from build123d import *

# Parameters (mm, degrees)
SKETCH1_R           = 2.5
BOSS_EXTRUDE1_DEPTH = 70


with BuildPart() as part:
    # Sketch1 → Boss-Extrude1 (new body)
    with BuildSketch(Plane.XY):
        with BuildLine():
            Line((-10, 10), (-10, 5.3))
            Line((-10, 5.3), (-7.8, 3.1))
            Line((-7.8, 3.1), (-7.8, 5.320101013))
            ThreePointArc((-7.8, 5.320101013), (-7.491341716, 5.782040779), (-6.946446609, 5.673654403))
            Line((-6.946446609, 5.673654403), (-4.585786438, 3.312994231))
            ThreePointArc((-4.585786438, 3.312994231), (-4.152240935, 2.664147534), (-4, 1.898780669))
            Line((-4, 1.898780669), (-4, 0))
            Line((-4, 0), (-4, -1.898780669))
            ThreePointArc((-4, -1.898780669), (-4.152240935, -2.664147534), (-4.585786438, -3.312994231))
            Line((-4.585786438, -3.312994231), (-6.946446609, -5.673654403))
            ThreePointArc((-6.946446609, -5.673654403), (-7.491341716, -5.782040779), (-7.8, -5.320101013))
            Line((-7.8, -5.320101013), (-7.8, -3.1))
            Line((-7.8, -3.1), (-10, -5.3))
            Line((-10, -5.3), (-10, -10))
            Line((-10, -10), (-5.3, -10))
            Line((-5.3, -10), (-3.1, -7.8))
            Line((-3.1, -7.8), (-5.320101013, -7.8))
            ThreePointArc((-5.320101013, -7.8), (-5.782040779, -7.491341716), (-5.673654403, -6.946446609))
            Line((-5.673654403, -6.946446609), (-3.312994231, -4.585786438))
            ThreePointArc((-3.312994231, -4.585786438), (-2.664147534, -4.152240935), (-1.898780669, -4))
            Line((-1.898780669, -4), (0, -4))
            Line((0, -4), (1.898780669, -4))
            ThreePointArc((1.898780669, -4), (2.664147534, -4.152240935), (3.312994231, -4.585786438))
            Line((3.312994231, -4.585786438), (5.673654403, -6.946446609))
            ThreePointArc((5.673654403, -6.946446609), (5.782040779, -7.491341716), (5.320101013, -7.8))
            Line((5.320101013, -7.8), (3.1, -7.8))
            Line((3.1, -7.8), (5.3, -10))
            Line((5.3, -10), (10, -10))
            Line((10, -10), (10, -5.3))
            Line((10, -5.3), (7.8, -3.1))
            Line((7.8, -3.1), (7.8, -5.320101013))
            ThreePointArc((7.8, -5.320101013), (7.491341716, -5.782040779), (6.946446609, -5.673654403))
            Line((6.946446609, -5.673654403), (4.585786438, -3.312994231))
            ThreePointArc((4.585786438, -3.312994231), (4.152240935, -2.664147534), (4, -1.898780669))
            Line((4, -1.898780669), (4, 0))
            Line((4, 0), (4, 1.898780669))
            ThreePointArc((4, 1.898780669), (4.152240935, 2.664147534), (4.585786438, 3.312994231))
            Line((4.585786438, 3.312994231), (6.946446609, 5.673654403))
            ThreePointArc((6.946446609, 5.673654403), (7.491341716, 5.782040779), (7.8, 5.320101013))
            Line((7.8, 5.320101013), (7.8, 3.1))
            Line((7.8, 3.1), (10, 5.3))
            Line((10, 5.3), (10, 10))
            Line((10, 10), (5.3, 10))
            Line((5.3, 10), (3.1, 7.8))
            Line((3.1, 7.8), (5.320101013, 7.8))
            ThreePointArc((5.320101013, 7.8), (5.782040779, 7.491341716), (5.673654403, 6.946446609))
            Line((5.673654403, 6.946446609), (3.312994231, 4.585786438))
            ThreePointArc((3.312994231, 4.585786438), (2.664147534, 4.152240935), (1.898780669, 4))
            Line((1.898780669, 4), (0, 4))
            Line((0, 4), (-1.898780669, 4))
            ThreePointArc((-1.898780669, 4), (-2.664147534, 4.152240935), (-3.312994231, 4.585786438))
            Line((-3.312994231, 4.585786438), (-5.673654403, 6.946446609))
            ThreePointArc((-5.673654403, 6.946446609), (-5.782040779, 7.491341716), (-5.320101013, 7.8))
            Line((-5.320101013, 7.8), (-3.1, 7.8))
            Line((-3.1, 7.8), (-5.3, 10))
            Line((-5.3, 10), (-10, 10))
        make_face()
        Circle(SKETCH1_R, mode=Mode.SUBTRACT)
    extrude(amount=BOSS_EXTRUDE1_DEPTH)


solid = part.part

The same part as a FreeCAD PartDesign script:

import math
import FreeCAD as App
import Part
import Sketcher
from FreeCAD import Vector

doc = App.newDocument("Part")
body = doc.addObject("PartDesign::Body", "Body")

# Sketch on XY plane
sketch1 = doc.addObject("Sketcher::SketchObject", "Sketch")
body.addObject(sketch1)
sketch1.AttachmentSupport = (doc.XY_Plane, [""])
sketch1.MapMode = "FlatFace"
sketch1.addGeometry(Part.LineSegment(Vector(-10, 10, 0), Vector(-10, 5.3, 0)), False)
sketch1.addGeometry(Part.LineSegment(Vector(-10, 5.3, 0), Vector(-7.8, 3.1, 0)), False)
sketch1.addGeometry(Part.LineSegment(Vector(-7.8, 3.1, 0), Vector(-7.8, 5.3, 0)), False)
sketch1.addGeometry(Part.ArcOfCircle(Part.Circle(Vector(-7.3, 5.3, 0), Vector(0, 0, 1), 0.5), math.radians(45), math.radians(180)), False)
sketch1.addGeometry(Part.LineSegment(Vector(-6.9, 5.7, 0), Vector(-4.6, 3.3, 0)), False)
sketch1.addGeometry(Part.ArcOfCircle(Part.Circle(Vector(-6, 1.9, 0), Vector(0, 0, 1), 2), math.radians(0), math.radians(45)), False)
sketch1.addGeometry(Part.LineSegment(Vector(-4, 1.9, 0), Vector(-4, -1.9, 0)), False)
sketch1.addGeometry(Part.ArcOfCircle(Part.Circle(Vector(-6, -1.9, 0), Vector(0, 0, 1), 2), math.radians(-45), math.radians(0)), False)
sketch1.addGeometry(Part.LineSegment(Vector(-4.6, -3.3, 0), Vector(-6.9, -5.7, 0)), False)
sketch1.addGeometry(Part.ArcOfCircle(Part.Circle(Vector(-7.3, -5.3, 0), Vector(0, 0, 1), 0.5), math.radians(180), math.radians(315)), False)
sketch1.addGeometry(Part.LineSegment(Vector(-7.8, -5.3, 0), Vector(-7.8, -3.1, 0)), False)
sketch1.addGeometry(Part.LineSegment(Vector(-7.8, -3.1, 0), Vector(-10, -5.3, 0)), False)
sketch1.addGeometry(Part.LineSegment(Vector(-10, -5.3, 0), Vector(-10, -10, 0)), False)
sketch1.addGeometry(Part.LineSegment(Vector(-10, -10, 0), Vector(-5.3, -10, 0)), False)
sketch1.addGeometry(Part.LineSegment(Vector(-5.3, -10, 0), Vector(-3.1, -7.8, 0)), False)
sketch1.addGeometry(Part.LineSegment(Vector(-3.1, -7.8, 0), Vector(-5.3, -7.8, 0)), False)
sketch1.addGeometry(Part.ArcOfCircle(Part.Circle(Vector(-5.3, -7.3, 0), Vector(0, 0, 1), 0.5), math.radians(135), math.radians(270)), False)
sketch1.addGeometry(Part.LineSegment(Vector(-5.7, -6.9, 0), Vector(-3.3, -4.6, 0)), False)
sketch1.addGeometry(Part.ArcOfCircle(Part.Circle(Vector(-1.9, -6, 0), Vector(0, 0, 1), 2), math.radians(90), math.radians(135)), False)
sketch1.addGeometry(Part.LineSegment(Vector(-1.9, -4, 0), Vector(1.9, -4, 0)), False)
sketch1.addGeometry(Part.ArcOfCircle(Part.Circle(Vector(1.9, -6, 0), Vector(0, 0, 1), 2), math.radians(45), math.radians(90)), False)
sketch1.addGeometry(Part.LineSegment(Vector(3.3, -4.6, 0), Vector(5.7, -6.9, 0)), False)
sketch1.addGeometry(Part.ArcOfCircle(Part.Circle(Vector(5.3, -7.3, 0), Vector(0, 0, 1), 0.5), math.radians(-90), math.radians(45)), False)
sketch1.addGeometry(Part.LineSegment(Vector(5.3, -7.8, 0), Vector(3.1, -7.8, 0)), False)
sketch1.addGeometry(Part.LineSegment(Vector(3.1, -7.8, 0), Vector(5.3, -10, 0)), False)
sketch1.addGeometry(Part.LineSegment(Vector(5.3, -10, 0), Vector(10, -10, 0)), False)
sketch1.addGeometry(Part.LineSegment(Vector(10, -10, 0), Vector(10, -5.3, 0)), False)
sketch1.addGeometry(Part.LineSegment(Vector(10, -5.3, 0), Vector(7.8, -3.1, 0)), False)
sketch1.addGeometry(Part.LineSegment(Vector(7.8, -3.1, 0), Vector(7.8, -5.3, 0)), False)
sketch1.addGeometry(Part.ArcOfCircle(Part.Circle(Vector(7.3, -5.3, 0), Vector(0, 0, 1), 0.5), math.radians(-135), math.radians(0)), False)
sketch1.addGeometry(Part.LineSegment(Vector(6.9, -5.7, 0), Vector(4.6, -3.3, 0)), False)
sketch1.addGeometry(Part.ArcOfCircle(Part.Circle(Vector(6, -1.9, 0), Vector(0, 0, 1), 2), math.radians(180), math.radians(225)), False)
sketch1.addGeometry(Part.LineSegment(Vector(4, -1.9, 0), Vector(4, 1.9, 0)), False)
sketch1.addGeometry(Part.ArcOfCircle(Part.Circle(Vector(6, 1.9, 0), Vector(0, 0, 1), 2), math.radians(135), math.radians(180)), False)
sketch1.addGeometry(Part.LineSegment(Vector(4.6, 3.3, 0), Vector(6.9, 5.7, 0)), False)
sketch1.addGeometry(Part.ArcOfCircle(Part.Circle(Vector(7.3, 5.3, 0), Vector(0, 0, 1), 0.5), math.radians(0), math.radians(135)), False)
sketch1.addGeometry(Part.LineSegment(Vector(7.8, 5.3, 0), Vector(7.8, 3.1, 0)), False)
sketch1.addGeometry(Part.LineSegment(Vector(7.8, 3.1, 0), Vector(10, 5.3, 0)), False)
sketch1.addGeometry(Part.LineSegment(Vector(10, 5.3, 0), Vector(10, 10, 0)), False)
sketch1.addGeometry(Part.LineSegment(Vector(10, 10, 0), Vector(5.3, 10, 0)), False)
sketch1.addGeometry(Part.LineSegment(Vector(5.3, 10, 0), Vector(3.1, 7.8, 0)), False)
sketch1.addGeometry(Part.LineSegment(Vector(3.1, 7.8, 0), Vector(5.3, 7.8, 0)), False)
sketch1.addGeometry(Part.ArcOfCircle(Part.Circle(Vector(5.3, 7.3, 0), Vector(0, 0, 1), 0.5), math.radians(-45), math.radians(90)), False)
sketch1.addGeometry(Part.LineSegment(Vector(5.7, 6.9, 0), Vector(3.3, 4.6, 0)), False)
sketch1.addGeometry(Part.ArcOfCircle(Part.Circle(Vector(1.9, 6, 0), Vector(0, 0, 1), 2), math.radians(-90), math.radians(-45)), False)
sketch1.addGeometry(Part.LineSegment(Vector(1.9, 4, 0), Vector(-1.9, 4, 0)), False)
sketch1.addGeometry(Part.ArcOfCircle(Part.Circle(Vector(-1.9, 6, 0), Vector(0, 0, 1), 2), math.radians(-135), math.radians(-90)), False)
sketch1.addGeometry(Part.LineSegment(Vector(-3.3, 4.6, 0), Vector(-5.7, 6.9, 0)), False)
sketch1.addGeometry(Part.ArcOfCircle(Part.Circle(Vector(-5.3, 7.3, 0), Vector(0, 0, 1), 0.5), math.radians(90), math.radians(225)), False)
sketch1.addGeometry(Part.LineSegment(Vector(-5.3, 7.8, 0), Vector(-3.1, 7.8, 0)), False)
sketch1.addGeometry(Part.LineSegment(Vector(-3.1, 7.8, 0), Vector(-5.3, 10, 0)), False)
sketch1.addGeometry(Part.LineSegment(Vector(-5.3, 10, 0), Vector(-10, 10, 0)), False)
sketch1.addGeometry(Part.Circle(Vector(0, 0, 0), Vector(0, 0, 1), 2.5), False)
sketch1.addConstraint(Sketcher.Constraint("Coincident", 0, 2, 1, 1))
sketch1.addConstraint(Sketcher.Constraint("Coincident", 1, 2, 2, 1))
sketch1.addConstraint(Sketcher.Constraint("Tangent", 2, 2, 3, 2))
sketch1.addConstraint(Sketcher.Constraint("Tangent", 3, 1, 4, 1))
sketch1.addConstraint(Sketcher.Constraint("Tangent", 4, 2, 5, 2))
sketch1.addConstraint(Sketcher.Constraint("Tangent", 5, 1, 6, 1))
sketch1.addConstraint(Sketcher.Constraint("Tangent", 6, 2, 7, 2))
sketch1.addConstraint(Sketcher.Constraint("Tangent", 7, 1, 8, 1))
sketch1.addConstraint(Sketcher.Constraint("Tangent", 8, 2, 9, 2))
sketch1.addConstraint(Sketcher.Constraint("Tangent", 9, 1, 10, 1))
sketch1.addConstraint(Sketcher.Constraint("Coincident", 10, 2, 11, 1))
sketch1.addConstraint(Sketcher.Constraint("Coincident", 11, 2, 12, 1))
sketch1.addConstraint(Sketcher.Constraint("Coincident", 12, 2, 13, 1))
sketch1.addConstraint(Sketcher.Constraint("Coincident", 13, 2, 14, 1))
sketch1.addConstraint(Sketcher.Constraint("Coincident", 14, 2, 15, 1))
sketch1.addConstraint(Sketcher.Constraint("Tangent", 15, 2, 16, 2))
sketch1.addConstraint(Sketcher.Constraint("Tangent", 16, 1, 17, 1))
sketch1.addConstraint(Sketcher.Constraint("Tangent", 17, 2, 18, 2))
sketch1.addConstraint(Sketcher.Constraint("Tangent", 18, 1, 19, 1))
sketch1.addConstraint(Sketcher.Constraint("Tangent", 19, 2, 20, 2))
sketch1.addConstraint(Sketcher.Constraint("Tangent", 20, 1, 21, 1))
sketch1.addConstraint(Sketcher.Constraint("Tangent", 21, 2, 22, 2))
sketch1.addConstraint(Sketcher.Constraint("Tangent", 22, 1, 23, 1))
sketch1.addConstraint(Sketcher.Constraint("Coincident", 23, 2, 24, 1))
sketch1.addConstraint(Sketcher.Constraint("Coincident", 24, 2, 25, 1))
sketch1.addConstraint(Sketcher.Constraint("Coincident", 25, 2, 26, 1))
sketch1.addConstraint(Sketcher.Constraint("Coincident", 26, 2, 27, 1))
sketch1.addConstraint(Sketcher.Constraint("Coincident", 27, 2, 28, 1))
sketch1.addConstraint(Sketcher.Constraint("Tangent", 28, 2, 29, 2))
sketch1.addConstraint(Sketcher.Constraint("Tangent", 29, 1, 30, 1))
sketch1.addConstraint(Sketcher.Constraint("Tangent", 30, 2, 31, 2))
sketch1.addConstraint(Sketcher.Constraint("Tangent", 31, 1, 32, 1))
sketch1.addConstraint(Sketcher.Constraint("Tangent", 32, 2, 33, 2))
sketch1.addConstraint(Sketcher.Constraint("Tangent", 33, 1, 34, 1))
sketch1.addConstraint(Sketcher.Constraint("Tangent", 34, 2, 35, 2))
sketch1.addConstraint(Sketcher.Constraint("Tangent", 35, 1, 36, 1))
sketch1.addConstraint(Sketcher.Constraint("Coincident", 36, 2, 37, 1))
sketch1.addConstraint(Sketcher.Constraint("Coincident", 37, 2, 38, 1))
sketch1.addConstraint(Sketcher.Constraint("Coincident", 38, 2, 39, 1))
sketch1.addConstraint(Sketcher.Constraint("Coincident", 39, 2, 40, 1))
sketch1.addConstraint(Sketcher.Constraint("Coincident", 40, 2, 41, 1))
sketch1.addConstraint(Sketcher.Constraint("Tangent", 41, 2, 42, 2))
sketch1.addConstraint(Sketcher.Constraint("Tangent", 42, 1, 43, 1))
sketch1.addConstraint(Sketcher.Constraint("Tangent", 43, 2, 44, 2))
sketch1.addConstraint(Sketcher.Constraint("Tangent", 44, 1, 45, 1))
sketch1.addConstraint(Sketcher.Constraint("Tangent", 45, 2, 46, 2))
sketch1.addConstraint(Sketcher.Constraint("Tangent", 46, 1, 47, 1))
sketch1.addConstraint(Sketcher.Constraint("Tangent", 47, 2, 48, 2))
sketch1.addConstraint(Sketcher.Constraint("Tangent", 48, 1, 49, 1))
sketch1.addConstraint(Sketcher.Constraint("Coincident", 49, 2, 50, 1))
sketch1.addConstraint(Sketcher.Constraint("Coincident", 50, 2, 51, 1))
sketch1.addConstraint(Sketcher.Constraint("Coincident", 51, 2, 0, 1))
sketch1.addConstraint(Sketcher.Constraint("Vertical", 0))
sketch1.addConstraint(Sketcher.Constraint("Vertical", 2))
sketch1.addConstraint(Sketcher.Constraint("Vertical", 6))
sketch1.addConstraint(Sketcher.Constraint("Vertical", 10))
sketch1.addConstraint(Sketcher.Constraint("Vertical", 12))
sketch1.addConstraint(Sketcher.Constraint("Horizontal", 13))
sketch1.addConstraint(Sketcher.Constraint("Horizontal", 15))
sketch1.addConstraint(Sketcher.Constraint("Horizontal", 19))
sketch1.addConstraint(Sketcher.Constraint("Horizontal", 23))
sketch1.addConstraint(Sketcher.Constraint("Horizontal", 25))
sketch1.addConstraint(Sketcher.Constraint("Vertical", 26))
sketch1.addConstraint(Sketcher.Constraint("Vertical", 28))
sketch1.addConstraint(Sketcher.Constraint("Vertical", 32))
sketch1.addConstraint(Sketcher.Constraint("Vertical", 36))
sketch1.addConstraint(Sketcher.Constraint("Vertical", 38))
sketch1.addConstraint(Sketcher.Constraint("Horizontal", 39))
sketch1.addConstraint(Sketcher.Constraint("Horizontal", 41))
sketch1.addConstraint(Sketcher.Constraint("Horizontal", 45))
sketch1.addConstraint(Sketcher.Constraint("Horizontal", 49))
sketch1.addConstraint(Sketcher.Constraint("Horizontal", 51))
sketch1.addConstraint(Sketcher.Constraint("Coincident", 52, 3, -1, 1))
sketch1.addConstraint(Sketcher.Constraint("Equal", 5, 7))
sketch1.addConstraint(Sketcher.Constraint("Equal", 3, 9))
sketch1.addConstraint(Sketcher.Constraint("Equal", 9, 16))
sketch1.addConstraint(Sketcher.Constraint("Equal", 7, 18))
sketch1.addConstraint(Sketcher.Constraint("Equal", 18, 20))
sketch1.addConstraint(Sketcher.Constraint("Equal", 16, 22))
sketch1.addConstraint(Sketcher.Constraint("Equal", 22, 29))
sketch1.addConstraint(Sketcher.Constraint("Equal", 20, 31))
sketch1.addConstraint(Sketcher.Constraint("Equal", 31, 33))
sketch1.addConstraint(Sketcher.Constraint("Equal", 29, 35))
sketch1.addConstraint(Sketcher.Constraint("Equal", 35, 42))
sketch1.addConstraint(Sketcher.Constraint("Equal", 33, 44))
sketch1.addConstraint(Sketcher.Constraint("Equal", 44, 46))
sketch1.addConstraint(Sketcher.Constraint("Equal", 42, 48))
sketch1.addConstraint(Sketcher.Constraint("Symmetric", 3, 3, 29, 3, -1, 1))
sketch1.addConstraint(Sketcher.Constraint("Symmetric", 5, 3, 31, 3, -1, 1))
sketch1.addConstraint(Sketcher.Constraint("Symmetric", 9, 3, 35, 3, -1, 1))
sketch1.addConstraint(Sketcher.Constraint("Symmetric", 16, 3, 42, 3, -1, 1))
sketch1.addConstraint(Sketcher.Constraint("Symmetric", 18, 3, 44, 3, -1, 1))
sketch1.addConstraint(Sketcher.Constraint("Symmetric", 22, 3, 48, 3, -1, 1))
sketch1.addConstraint(Sketcher.Constraint("Symmetric", 0, 2, 26, 2, -1, 1))
sketch1.addConstraint(Sketcher.Constraint("Symmetric", 11, 2, 37, 2, -1, 1))
sketch1.addConstraint(Sketcher.Constraint("Symmetric", 13, 2, 39, 2, -1, 1))
sketch1.addConstraint(Sketcher.Constraint("Symmetric", 24, 2, 50, 2, -1, 1))
sketch1.addConstraint(Sketcher.Constraint("Symmetric", 16, 3, 22, 3, -2))
sketch1.addConstraint(Sketcher.Constraint("Symmetric", 9, 3, 29, 3, -2))
sketch1.addConstraint(Sketcher.Constraint("Symmetric", 13, 2, 24, 2, -2))
sketch1.addConstraint(Sketcher.Constraint("Symmetric", 11, 2, 26, 2, -2))
sketch1.addConstraint(Sketcher.Constraint("Parallel", 1, 4))
sketch1.addConstraint(Sketcher.Constraint("Perpendicular", 4, 8))
sketch1.addConstraint(Sketcher.Constraint("Parallel", 8, 11))
sketch1.addConstraint(Sketcher.Constraint("Parallel", 11, 14))
sketch1.addConstraint(Sketcher.Constraint("Parallel", 14, 17))
sketch1.addConstraint(Sketcher.Constraint("Perpendicular", 17, 21))
sketch1.addConstraint(Sketcher.Constraint("Parallel", 21, 24))
sketch1.addConstraint(Sketcher.Constraint("Parallel", 24, 27))
sketch1.addConstraint(Sketcher.Constraint("Perpendicular", 30, 34))
sketch1.addConstraint(Sketcher.Constraint("Parallel", 34, 37))
sketch1.addConstraint(Sketcher.Constraint("Parallel", 37, 40))
sketch1.addConstraint(Sketcher.Constraint("Perpendicular", 43, 47))
sketch1.addConstraint(Sketcher.Constraint("Parallel", 47, 50))
sketch1.addConstraint(Sketcher.Constraint("Horizontal", 7, 3, 31, 3))
sketch1.addConstraint(Sketcher.Constraint("Equal", 51, 0))
sketch1.addConstraint(Sketcher.Constraint("Equal", 49, 2))
sketch1.addConstraint(Sketcher.Constraint("Equal", 45, 6))
sketch1.addConstraint(Sketcher.Constraint("Equal", 11, 14))
sketch1.addConstraint(Sketcher.Constraint("Equal", 8, 17))
sketch1.addConstraint(Sketcher.Constraint("Diameter", 52, 5.0))
sketch1.addConstraint(Sketcher.Constraint("Radius", 5, 2.0))
sketch1.addConstraint(Sketcher.Constraint("Radius", 3, 0.5))
sketch1.addConstraint(Sketcher.Constraint("DistanceX", 13, 1, 13, 2, 4.7))
sketch1.addConstraint(Sketcher.Constraint("DistanceX", 5, 3, -1, 1, 6.0))
sketch1.addConstraint(Sketcher.Constraint("DistanceX", 0, 2, -1, 1, 10.0))
sketch1.addConstraint(Sketcher.Constraint("DistanceX", 3, 3, -1, 1, 7.3))
sketch1.addConstraint(Sketcher.Constraint("DistanceX", 15, 2, 15, 1, 2.220101))
pad1 = doc.addObject("PartDesign::Pad", "Pad")
body.addObject(pad1)
pad1.Profile = sketch1
pad1.Length = 70

doc.recompute()
